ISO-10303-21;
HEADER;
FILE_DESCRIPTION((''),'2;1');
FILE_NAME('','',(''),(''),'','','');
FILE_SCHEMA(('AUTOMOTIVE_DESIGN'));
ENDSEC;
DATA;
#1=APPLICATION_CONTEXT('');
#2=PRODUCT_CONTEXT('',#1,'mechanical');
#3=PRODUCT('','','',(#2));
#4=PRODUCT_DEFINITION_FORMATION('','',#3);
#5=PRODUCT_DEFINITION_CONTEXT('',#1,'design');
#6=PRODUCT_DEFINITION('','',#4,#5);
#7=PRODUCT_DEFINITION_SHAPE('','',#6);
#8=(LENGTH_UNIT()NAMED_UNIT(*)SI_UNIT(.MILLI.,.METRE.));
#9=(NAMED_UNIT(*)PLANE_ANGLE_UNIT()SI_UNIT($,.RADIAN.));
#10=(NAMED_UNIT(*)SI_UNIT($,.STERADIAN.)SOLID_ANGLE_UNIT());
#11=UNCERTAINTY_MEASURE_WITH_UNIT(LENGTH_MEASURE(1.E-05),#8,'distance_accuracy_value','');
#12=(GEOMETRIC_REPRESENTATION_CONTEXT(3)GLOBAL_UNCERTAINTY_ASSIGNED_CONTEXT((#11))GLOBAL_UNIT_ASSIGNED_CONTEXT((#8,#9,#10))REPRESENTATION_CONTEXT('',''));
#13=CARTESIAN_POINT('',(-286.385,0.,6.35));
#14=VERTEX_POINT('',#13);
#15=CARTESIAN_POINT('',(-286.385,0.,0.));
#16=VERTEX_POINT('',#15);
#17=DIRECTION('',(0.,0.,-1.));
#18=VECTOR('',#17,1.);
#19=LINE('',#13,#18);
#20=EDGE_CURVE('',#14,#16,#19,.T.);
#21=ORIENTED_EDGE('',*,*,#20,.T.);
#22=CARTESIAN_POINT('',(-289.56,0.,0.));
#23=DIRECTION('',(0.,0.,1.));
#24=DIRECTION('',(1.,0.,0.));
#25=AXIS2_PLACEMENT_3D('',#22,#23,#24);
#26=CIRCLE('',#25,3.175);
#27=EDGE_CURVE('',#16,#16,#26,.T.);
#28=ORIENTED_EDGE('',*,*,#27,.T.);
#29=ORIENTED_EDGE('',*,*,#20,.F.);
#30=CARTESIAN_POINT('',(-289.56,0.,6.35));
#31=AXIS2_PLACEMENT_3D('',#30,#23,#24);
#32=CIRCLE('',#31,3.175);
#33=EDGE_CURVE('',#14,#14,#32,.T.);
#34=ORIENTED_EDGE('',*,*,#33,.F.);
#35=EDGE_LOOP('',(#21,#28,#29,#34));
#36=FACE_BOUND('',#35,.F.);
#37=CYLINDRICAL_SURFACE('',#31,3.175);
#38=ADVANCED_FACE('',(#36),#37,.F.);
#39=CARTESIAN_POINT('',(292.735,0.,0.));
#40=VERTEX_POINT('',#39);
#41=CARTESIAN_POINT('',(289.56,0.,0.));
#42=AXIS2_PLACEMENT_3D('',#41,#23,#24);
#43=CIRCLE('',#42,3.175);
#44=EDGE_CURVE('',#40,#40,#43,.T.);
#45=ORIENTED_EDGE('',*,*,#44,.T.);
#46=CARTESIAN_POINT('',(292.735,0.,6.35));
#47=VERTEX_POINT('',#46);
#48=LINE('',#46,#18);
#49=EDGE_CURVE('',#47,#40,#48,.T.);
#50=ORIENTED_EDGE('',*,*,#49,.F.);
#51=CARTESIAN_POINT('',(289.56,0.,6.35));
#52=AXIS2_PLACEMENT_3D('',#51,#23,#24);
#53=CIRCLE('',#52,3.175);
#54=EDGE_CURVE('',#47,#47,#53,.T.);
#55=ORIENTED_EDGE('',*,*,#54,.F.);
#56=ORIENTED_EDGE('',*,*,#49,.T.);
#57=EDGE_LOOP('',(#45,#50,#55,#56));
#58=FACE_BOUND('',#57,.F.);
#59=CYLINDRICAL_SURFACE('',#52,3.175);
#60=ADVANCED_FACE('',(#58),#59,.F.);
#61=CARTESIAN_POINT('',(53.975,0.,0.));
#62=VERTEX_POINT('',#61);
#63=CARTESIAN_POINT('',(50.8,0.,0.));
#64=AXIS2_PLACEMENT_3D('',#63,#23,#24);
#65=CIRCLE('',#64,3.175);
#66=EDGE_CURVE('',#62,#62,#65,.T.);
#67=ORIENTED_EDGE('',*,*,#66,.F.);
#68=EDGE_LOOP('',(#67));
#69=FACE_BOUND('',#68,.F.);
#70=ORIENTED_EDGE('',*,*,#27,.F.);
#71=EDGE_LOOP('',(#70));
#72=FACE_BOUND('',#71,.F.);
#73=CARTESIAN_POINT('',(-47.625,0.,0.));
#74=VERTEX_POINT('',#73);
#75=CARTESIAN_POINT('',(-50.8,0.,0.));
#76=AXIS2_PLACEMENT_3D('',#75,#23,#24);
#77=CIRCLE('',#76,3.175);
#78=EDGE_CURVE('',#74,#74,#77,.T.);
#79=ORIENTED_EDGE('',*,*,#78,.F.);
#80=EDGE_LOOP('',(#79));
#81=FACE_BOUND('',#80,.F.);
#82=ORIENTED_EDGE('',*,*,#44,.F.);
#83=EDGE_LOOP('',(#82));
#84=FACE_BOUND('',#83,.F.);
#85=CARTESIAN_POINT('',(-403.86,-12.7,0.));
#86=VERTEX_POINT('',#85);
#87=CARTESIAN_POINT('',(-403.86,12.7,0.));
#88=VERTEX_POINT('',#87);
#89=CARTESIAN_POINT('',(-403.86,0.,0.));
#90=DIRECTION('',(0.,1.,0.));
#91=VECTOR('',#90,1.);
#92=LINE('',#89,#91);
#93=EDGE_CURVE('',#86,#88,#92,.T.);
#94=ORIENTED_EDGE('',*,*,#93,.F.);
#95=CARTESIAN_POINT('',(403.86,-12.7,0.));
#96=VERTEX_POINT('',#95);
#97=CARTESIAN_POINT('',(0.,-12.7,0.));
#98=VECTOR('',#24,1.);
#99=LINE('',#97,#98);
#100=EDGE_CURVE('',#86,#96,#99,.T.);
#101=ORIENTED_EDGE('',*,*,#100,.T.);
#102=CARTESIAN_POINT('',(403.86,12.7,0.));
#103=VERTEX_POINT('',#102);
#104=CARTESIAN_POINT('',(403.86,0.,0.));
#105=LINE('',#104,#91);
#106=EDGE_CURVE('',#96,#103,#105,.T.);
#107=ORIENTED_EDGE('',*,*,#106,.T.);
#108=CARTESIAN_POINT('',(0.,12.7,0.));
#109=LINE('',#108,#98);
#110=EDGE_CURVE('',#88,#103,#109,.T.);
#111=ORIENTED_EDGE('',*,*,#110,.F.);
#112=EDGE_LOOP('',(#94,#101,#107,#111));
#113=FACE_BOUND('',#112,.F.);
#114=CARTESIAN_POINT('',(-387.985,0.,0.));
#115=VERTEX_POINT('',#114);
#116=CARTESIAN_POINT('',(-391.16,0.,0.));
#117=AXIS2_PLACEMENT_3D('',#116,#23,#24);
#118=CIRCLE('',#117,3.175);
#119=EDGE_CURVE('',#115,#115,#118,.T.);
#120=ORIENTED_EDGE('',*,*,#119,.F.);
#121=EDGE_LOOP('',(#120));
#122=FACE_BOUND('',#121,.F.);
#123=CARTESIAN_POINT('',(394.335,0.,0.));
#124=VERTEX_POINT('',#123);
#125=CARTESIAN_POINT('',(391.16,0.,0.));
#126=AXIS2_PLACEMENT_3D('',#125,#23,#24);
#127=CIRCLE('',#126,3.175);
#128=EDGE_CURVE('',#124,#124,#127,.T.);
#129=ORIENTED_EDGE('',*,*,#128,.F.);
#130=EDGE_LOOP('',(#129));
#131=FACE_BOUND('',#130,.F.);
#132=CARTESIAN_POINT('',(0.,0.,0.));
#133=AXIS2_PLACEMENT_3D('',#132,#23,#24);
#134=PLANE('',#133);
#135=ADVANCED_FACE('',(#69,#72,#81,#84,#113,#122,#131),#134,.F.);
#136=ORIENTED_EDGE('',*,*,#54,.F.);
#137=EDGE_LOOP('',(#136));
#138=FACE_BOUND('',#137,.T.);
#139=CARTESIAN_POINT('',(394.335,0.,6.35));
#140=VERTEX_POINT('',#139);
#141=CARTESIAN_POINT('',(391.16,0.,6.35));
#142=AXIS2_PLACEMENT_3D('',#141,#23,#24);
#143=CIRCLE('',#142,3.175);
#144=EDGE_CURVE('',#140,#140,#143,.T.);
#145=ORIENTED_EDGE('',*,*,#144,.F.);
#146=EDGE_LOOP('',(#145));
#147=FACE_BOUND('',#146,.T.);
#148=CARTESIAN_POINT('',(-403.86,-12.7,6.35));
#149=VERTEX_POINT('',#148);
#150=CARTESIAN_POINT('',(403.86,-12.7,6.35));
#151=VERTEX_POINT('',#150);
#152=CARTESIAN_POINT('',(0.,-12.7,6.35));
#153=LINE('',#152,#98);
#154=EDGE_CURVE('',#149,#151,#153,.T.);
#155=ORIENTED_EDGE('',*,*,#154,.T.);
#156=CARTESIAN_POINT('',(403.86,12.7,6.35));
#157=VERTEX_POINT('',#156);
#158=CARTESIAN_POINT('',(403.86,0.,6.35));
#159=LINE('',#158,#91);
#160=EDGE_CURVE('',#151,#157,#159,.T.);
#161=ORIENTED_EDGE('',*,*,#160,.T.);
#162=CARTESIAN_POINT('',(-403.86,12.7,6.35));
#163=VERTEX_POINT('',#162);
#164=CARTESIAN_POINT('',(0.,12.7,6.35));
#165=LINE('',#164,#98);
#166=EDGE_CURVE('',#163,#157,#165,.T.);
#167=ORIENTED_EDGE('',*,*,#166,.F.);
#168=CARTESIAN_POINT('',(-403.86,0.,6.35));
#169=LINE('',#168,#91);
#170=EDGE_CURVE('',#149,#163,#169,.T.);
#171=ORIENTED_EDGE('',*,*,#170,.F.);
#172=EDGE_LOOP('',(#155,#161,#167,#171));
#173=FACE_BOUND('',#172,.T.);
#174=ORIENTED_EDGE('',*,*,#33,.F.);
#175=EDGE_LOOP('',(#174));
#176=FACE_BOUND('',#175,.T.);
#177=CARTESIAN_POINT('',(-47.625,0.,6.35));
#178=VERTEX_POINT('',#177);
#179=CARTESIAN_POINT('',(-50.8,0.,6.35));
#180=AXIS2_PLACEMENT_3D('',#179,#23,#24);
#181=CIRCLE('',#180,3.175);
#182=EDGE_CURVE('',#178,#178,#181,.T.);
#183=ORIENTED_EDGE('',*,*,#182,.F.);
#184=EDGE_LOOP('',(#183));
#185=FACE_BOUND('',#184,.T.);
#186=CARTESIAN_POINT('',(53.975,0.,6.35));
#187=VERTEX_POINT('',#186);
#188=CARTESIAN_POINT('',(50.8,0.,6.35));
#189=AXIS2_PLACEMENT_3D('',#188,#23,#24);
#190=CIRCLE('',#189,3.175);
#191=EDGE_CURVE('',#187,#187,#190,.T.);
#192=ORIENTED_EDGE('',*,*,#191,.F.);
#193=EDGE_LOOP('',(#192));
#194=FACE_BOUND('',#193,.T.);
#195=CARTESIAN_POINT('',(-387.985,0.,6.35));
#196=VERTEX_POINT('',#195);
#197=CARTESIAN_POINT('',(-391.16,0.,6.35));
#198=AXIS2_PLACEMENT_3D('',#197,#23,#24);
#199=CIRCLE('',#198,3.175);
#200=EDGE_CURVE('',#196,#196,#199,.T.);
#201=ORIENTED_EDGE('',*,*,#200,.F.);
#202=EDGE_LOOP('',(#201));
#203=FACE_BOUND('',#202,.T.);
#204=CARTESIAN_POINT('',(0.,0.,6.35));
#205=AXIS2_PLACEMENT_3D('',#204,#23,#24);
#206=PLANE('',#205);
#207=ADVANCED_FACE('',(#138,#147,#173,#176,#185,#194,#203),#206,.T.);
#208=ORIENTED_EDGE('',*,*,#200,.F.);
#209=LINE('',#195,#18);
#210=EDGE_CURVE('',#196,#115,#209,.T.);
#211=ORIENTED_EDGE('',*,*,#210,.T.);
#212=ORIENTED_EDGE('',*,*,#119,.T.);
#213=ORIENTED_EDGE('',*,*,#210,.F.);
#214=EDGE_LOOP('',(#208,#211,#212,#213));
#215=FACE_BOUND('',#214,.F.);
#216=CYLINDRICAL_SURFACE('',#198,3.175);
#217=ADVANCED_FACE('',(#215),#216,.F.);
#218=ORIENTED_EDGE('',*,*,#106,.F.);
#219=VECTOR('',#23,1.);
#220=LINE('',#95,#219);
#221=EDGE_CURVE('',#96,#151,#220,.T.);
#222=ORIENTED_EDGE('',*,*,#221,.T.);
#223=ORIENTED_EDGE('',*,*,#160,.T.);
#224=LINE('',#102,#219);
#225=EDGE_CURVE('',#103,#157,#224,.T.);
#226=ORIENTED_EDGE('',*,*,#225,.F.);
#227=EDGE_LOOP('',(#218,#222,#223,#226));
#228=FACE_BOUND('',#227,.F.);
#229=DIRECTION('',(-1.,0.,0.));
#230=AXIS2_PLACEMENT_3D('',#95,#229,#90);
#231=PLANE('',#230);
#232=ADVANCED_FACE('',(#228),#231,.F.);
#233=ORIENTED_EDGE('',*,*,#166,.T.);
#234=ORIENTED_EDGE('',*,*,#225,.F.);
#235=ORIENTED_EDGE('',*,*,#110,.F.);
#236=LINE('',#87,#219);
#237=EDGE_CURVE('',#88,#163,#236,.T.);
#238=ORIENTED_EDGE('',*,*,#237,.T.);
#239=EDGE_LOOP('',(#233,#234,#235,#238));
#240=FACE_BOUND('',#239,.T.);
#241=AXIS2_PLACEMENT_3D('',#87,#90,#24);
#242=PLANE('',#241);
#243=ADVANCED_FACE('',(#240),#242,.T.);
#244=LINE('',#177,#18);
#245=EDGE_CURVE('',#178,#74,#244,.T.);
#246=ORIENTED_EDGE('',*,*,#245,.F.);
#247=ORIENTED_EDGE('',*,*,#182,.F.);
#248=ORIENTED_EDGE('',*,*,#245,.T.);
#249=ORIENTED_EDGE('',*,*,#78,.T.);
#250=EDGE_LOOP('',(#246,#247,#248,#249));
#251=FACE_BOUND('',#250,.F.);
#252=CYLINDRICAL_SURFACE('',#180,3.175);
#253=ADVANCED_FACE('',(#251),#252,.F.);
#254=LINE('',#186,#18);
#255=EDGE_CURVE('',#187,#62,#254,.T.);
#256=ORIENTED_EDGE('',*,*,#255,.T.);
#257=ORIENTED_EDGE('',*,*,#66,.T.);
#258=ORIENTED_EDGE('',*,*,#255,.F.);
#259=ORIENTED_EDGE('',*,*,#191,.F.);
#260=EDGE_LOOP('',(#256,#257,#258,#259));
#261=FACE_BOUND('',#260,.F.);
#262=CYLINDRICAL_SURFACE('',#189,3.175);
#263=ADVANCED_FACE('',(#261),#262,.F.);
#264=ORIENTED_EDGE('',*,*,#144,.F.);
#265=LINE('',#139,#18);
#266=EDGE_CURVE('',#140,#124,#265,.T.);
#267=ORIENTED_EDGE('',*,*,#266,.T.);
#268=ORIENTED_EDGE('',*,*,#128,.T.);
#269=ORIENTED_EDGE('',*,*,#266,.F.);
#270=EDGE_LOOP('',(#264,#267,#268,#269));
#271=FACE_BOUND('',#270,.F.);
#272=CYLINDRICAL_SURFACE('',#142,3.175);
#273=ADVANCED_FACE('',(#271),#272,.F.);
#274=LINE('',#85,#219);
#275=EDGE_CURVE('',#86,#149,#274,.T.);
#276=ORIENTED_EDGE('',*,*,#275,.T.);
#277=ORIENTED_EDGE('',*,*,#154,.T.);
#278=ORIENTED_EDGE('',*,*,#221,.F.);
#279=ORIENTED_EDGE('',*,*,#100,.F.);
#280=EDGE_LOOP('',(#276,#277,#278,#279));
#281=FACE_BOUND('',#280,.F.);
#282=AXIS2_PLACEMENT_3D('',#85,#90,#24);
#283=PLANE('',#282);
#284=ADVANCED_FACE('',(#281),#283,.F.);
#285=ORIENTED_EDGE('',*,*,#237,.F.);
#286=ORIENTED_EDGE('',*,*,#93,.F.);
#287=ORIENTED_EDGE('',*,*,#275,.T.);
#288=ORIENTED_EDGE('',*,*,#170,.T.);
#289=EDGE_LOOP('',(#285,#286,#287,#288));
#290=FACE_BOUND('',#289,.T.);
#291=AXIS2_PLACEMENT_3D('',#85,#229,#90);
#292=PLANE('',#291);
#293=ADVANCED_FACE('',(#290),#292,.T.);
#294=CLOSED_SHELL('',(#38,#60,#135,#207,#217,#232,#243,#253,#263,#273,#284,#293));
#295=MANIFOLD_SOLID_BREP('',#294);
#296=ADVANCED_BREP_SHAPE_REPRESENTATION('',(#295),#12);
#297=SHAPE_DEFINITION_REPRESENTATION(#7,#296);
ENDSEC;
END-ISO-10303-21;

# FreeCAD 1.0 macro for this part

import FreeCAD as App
import Part
import Sketcher
from FreeCAD import Vector
Q = App.Units.Quantity


def add_polygon(sketch, points):
    """Adds a closed chain of lines whose ends are joined by coincident constraints."""
    first, n = sketch.GeometryCount, len(points)
    for a, b in zip(points, points[1:] + points[:1]):
        sketch.addGeometry(Part.LineSegment(App.Vector(*a, 0), App.Vector(*b, 0)), False)
    for i in range(n):
        sketch.addConstraint(Sketcher.Constraint("Coincident", first + i, 2, first + (i + 1) % n, 1))

doc = App.newDocument("Part")
body = doc.addObject("PartDesign::Body", "Body")

# Sketch on XY plane
sketch1 = body.newObject("Sketcher::SketchObject", "Sketch")
sketch1.AttachmentSupport = (doc.getObject("XY_Plane"), [""])
sketch1.MapMode = "FlatFace"
add_polygon(sketch1, [(-403.86, 12.7), (-403.86, -12.7), (403.86, -12.7), (403.86, 12.7)])  # lines 0-3
sketch1.addConstraint(Sketcher.Constraint("Vertical", 0))
sketch1.addConstraint(Sketcher.Constraint("Horizontal", 1))
sketch1.addConstraint(Sketcher.Constraint("Vertical", 2))
sketch1.addConstraint(Sketcher.Constraint("Horizontal", 3))
sketch1.addConstraint(Sketcher.Constraint("Symmetric", 0, 2, 2, 2, -1, 1))
sketch1.addConstraint(Sketcher.Constraint("DistanceY", 0, 2, 0, 1, Q("1 in")))
sketch1.addConstraint(Sketcher.Constraint("DistanceX", 1, 1, 1, 2, Q("31.8 in")))
pad1 = body.newObject("PartDesign::Pad", "Pad")
pad1.Profile = sketch1
pad1.Length = Q("0.25 in")

# Sketch on XY plane
sketch2 = body.newObject("Sketcher::SketchObject", "Sketch001")
sketch2.AttachmentSupport = (doc.getObject("XY_Plane"), [""])
sketch2.MapMode = "FlatFace"
sketch2.AttachmentOffset = App.Placement(Vector(0, 0, 0.25 * 25.4), App.Rotation())
sketch2.addGeometry(Part.Circle(Vector(-391.16, 0, 0), Vector(0, 0, 1), 3.175), False)
sketch2.addGeometry(Part.Circle(Vector(-289.56, 0, 0), Vector(0, 0, 1), 3.175), False)
sketch2.addGeometry(Part.Circle(Vector(-50.8, 0, 0), Vector(0, 0, 1), 3.175), False)
sketch2.addGeometry(Part.Circle(Vector(50.8, 0, 0), Vector(0, 0, 1), 3.175), False)
sketch2.addGeometry(Part.Circle(Vector(289.56, 0, 0), Vector(0, 0, 1), 3.175), False)
sketch2.addGeometry(Part.Circle(Vector(391.16, 0, 0), Vector(0, 0, 1), 3.175), False)
sketch2.addConstraint(Sketcher.Constraint("Equal", 0, 1))
sketch2.addConstraint(Sketcher.Constraint("Equal", 1, 2))
sketch2.addConstraint(Sketcher.Constraint("Equal", 2, 3))
sketch2.addConstraint(Sketcher.Constraint("Equal", 3, 4))
sketch2.addConstraint(Sketcher.Constraint("Equal", 4, 5))
sketch2.addConstraint(Sketcher.Constraint("Symmetric", 2, 3, 3, 3, -1, 1))
sketch2.addConstraint(Sketcher.Constraint("Symmetric", 1, 3, 4, 3, -1, 1))
sketch2.addConstraint(Sketcher.Constraint("Symmetric", 0, 3, 5, 3, -1, 1))
sketch2.addConstraint(Sketcher.Constraint("PointOnObject", 0, 3, -1))
sketch2.addConstraint(Sketcher.Constraint("PointOnObject", 1, 3, -1))
sketch2.addConstraint(Sketcher.Constraint("PointOnObject", 2, 3, -1))
sketch2.addConstraint(Sketcher.Constraint("Diameter", 0, Q("0.25 in")))
sketch2.addConstraint(Sketcher.Constraint("DistanceX", 2, 3, -1, 1, Q("2 in")))
sketch2.addConstraint(Sketcher.Constraint("DistanceX", 0, 3, 1, 3, Q("4 in")))
sketch2.addConstraint(Sketcher.Constraint("DistanceX", 0, 3, -1, 1, Q("15.4 in")))
pocket1 = body.newObject("PartDesign::Pocket", "Pocket")
pocket1.Profile = sketch2
pocket1.Length = Q("1 in")

doc.recompute()
